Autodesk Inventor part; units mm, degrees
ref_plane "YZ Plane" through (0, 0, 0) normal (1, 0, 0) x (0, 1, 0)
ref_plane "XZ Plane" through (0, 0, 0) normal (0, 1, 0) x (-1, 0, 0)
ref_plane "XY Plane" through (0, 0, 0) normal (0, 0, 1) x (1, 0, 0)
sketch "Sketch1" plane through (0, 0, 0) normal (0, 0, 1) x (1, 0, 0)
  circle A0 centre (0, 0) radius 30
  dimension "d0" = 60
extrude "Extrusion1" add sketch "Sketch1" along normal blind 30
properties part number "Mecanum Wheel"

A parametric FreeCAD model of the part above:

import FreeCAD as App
import Part
import Sketcher
from FreeCAD import Vector

doc = App.newDocument("Part")
body = doc.addObject("PartDesign::Body", "Body")

sketch1 = body.newObject("Sketcher::SketchObject", "Sketch")
sketch1.AttachmentSupport = (doc.getObject("XY_Plane"), [""])
sketch1.MapMode = "FlatFace"
sketch1.addGeometry(Part.Circle(Vector(0, 0, 0), Vector(0, 0, 1), 30), False)
sketch1.addConstraint(Sketcher.Constraint("Coincident", 0, 3, -1, 1))
sketch1.addConstraint(Sketcher.Constraint("Diameter", 0, 60.0))
pad1 = body.newObject("PartDesign::Pad", "Pad")
pad1.Profile = sketch1
pad1.Length = 30

doc.recompute()
